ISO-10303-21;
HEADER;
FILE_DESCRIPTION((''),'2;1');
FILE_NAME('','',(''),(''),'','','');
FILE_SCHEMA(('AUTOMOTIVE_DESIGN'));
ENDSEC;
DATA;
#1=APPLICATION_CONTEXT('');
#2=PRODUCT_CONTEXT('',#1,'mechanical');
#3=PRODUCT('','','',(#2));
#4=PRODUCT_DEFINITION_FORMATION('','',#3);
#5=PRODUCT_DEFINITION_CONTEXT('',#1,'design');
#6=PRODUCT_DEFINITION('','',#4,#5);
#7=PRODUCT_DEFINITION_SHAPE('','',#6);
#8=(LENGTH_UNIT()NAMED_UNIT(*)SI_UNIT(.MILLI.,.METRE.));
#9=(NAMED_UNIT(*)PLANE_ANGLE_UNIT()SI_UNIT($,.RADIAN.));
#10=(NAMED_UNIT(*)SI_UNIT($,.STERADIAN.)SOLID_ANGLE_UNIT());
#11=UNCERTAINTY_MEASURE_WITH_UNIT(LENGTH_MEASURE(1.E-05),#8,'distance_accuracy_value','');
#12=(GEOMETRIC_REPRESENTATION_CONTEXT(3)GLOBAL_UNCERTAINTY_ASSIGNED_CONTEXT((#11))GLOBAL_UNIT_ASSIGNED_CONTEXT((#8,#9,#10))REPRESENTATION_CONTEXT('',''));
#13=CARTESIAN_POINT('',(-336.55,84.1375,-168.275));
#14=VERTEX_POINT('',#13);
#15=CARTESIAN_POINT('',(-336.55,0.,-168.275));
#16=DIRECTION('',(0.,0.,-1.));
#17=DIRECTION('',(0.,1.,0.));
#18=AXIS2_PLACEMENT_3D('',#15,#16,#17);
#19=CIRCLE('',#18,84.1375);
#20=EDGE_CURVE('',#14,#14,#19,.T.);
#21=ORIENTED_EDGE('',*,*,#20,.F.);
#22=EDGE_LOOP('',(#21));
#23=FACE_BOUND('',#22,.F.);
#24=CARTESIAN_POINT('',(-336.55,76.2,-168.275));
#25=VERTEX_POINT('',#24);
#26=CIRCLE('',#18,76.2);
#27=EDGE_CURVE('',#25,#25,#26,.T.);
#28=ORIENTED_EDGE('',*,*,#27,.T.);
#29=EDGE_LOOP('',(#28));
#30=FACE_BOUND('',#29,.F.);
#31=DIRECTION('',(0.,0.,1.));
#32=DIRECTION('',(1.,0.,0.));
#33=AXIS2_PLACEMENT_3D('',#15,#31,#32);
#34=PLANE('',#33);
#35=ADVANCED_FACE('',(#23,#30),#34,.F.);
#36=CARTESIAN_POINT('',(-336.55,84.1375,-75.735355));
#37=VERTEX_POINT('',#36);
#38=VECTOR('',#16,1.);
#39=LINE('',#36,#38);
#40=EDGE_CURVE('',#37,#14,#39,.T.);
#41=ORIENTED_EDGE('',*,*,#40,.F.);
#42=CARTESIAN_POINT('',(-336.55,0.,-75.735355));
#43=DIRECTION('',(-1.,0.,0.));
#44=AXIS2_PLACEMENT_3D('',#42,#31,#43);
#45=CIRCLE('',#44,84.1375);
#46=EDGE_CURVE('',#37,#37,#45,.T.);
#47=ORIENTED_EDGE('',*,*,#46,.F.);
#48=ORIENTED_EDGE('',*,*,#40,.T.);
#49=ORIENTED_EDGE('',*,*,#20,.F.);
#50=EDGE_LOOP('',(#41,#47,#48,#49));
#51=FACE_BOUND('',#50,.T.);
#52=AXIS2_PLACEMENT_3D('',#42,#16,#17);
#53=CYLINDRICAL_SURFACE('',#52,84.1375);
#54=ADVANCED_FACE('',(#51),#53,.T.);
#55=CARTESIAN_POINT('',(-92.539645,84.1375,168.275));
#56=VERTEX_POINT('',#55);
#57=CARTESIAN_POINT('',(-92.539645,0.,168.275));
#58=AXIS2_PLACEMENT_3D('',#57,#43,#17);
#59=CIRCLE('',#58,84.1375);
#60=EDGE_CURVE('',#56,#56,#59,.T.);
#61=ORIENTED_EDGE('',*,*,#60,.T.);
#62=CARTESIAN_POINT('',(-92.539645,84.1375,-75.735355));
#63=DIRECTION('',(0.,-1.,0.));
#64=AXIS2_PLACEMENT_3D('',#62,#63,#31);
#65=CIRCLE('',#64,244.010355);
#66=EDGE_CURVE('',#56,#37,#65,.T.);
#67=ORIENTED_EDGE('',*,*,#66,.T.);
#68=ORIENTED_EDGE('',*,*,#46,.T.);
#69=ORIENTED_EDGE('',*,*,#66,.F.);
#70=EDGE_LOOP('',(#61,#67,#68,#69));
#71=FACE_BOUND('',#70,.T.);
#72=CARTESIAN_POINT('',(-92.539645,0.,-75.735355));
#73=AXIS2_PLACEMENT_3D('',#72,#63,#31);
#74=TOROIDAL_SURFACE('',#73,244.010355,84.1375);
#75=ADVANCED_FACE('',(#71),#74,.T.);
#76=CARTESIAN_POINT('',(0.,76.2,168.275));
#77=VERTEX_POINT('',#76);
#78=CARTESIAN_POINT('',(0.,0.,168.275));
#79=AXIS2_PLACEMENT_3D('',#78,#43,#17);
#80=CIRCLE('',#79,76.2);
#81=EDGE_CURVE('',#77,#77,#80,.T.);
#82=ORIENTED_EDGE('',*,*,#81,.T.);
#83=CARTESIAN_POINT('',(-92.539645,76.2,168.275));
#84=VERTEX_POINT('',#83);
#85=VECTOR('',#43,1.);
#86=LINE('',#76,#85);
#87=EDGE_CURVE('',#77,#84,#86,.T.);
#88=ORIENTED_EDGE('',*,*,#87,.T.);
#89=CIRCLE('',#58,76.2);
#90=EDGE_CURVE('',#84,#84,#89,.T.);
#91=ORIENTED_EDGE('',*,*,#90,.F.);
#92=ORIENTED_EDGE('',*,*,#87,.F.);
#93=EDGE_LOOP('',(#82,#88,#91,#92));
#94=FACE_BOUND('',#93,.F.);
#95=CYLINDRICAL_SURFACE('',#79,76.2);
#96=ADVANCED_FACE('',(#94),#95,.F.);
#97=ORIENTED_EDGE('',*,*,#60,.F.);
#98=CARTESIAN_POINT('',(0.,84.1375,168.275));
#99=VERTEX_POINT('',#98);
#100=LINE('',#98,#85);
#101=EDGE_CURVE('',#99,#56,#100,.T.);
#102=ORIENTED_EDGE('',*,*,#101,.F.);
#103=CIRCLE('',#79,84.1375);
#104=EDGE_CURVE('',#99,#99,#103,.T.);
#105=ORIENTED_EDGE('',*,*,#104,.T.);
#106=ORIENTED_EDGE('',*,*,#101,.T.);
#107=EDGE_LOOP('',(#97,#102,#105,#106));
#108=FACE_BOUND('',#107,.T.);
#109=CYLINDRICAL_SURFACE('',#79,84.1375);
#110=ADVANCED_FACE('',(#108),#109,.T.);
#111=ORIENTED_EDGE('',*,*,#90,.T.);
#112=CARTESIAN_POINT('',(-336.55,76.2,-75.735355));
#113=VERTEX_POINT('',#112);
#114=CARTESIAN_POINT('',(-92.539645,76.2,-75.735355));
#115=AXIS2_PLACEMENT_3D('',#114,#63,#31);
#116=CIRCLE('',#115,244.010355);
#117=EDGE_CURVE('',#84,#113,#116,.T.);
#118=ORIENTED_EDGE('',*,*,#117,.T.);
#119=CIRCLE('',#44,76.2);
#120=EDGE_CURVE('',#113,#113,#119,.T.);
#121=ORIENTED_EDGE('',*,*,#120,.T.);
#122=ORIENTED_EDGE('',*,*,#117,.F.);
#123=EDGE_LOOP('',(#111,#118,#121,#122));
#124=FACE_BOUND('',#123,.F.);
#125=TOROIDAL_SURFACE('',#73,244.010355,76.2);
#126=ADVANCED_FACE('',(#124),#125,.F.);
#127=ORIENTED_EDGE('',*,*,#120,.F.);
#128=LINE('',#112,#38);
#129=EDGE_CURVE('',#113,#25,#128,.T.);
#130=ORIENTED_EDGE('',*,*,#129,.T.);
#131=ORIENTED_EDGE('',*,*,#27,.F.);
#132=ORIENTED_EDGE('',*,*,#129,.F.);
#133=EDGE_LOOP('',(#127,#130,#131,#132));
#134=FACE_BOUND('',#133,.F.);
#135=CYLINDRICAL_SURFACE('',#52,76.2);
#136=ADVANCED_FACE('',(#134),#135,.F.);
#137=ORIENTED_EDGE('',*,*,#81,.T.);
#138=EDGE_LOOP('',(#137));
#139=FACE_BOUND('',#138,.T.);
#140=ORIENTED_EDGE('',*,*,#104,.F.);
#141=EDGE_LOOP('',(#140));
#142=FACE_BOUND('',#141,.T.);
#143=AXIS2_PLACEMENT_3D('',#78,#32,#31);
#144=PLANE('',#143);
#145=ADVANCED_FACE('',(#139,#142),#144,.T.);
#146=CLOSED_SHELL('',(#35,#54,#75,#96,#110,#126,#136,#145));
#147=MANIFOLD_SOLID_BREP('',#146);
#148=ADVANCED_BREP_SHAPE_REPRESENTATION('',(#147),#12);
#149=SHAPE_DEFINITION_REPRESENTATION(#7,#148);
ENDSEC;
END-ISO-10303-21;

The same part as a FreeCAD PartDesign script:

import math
import FreeCAD as App
import Part
import Sketcher
Q = App.Units.Quantity

doc = App.newDocument("Part")
params = doc.addObject("Spreadsheet::Sheet", "Params")
for row, (alias, value) in enumerate([
    ("sketch1_diameter", "6 in"),
    ("sketch1_diameter2", "6.625 in"),
], start=1):
    params.set(f"A{row}", alias)
    params.set(f"B{row}", "=" + value)
    params.setAlias(f"B{row}", alias)

body = doc.addObject("PartDesign::Body", "Body")

sketch1 = body.newObject("Sketcher::SketchObject", "Sketch")
sketch1.AttachmentSupport = (doc.getObject("YZ_Plane"), [""])
sketch1.MapMode = "FlatFace"
sketch1.addGeometry(Part.Circle(App.Vector(0, 168, 0), App.Vector(0, 0, 1), 84), False)
sketch1.addGeometry(Part.Circle(App.Vector(0, 168, 0), App.Vector(0, 0, 1), 76), False)
sketch1.addConstraint(Sketcher.Constraint("Coincident", 1, 3, 0, 3))
sketch1.addConstraint(Sketcher.Constraint("PointOnObject", 0, 3, -2))
sketch1.addConstraint(Sketcher.Constraint("Diameter", 1, Q("6 in")))
sketch1.addConstraint(Sketcher.Constraint("Diameter", 0, Q("6.625 in")))
sketch1.addConstraint(Sketcher.Constraint("DistanceY", -1, 1, 0, 3, Q("6.625 in")))
sketch1.setExpression("Constraints[2]", "Params.sketch1_diameter")
sketch1.setExpression("Constraints[3]", "Params.sketch1_diameter2")

sketch2 = body.newObject("Sketcher::SketchObject", "Sketch001")
sketch2.AttachmentSupport = (doc.getObject("XZ_Plane"), [""])
sketch2.MapMode = "FlatFace"
sketch2.addGeometry(Part.LineSegment(App.Vector(0, 168, 0), App.Vector(-93, 168, 0)), False)
sketch2.addGeometry(Part.ArcOfCircle(Part.Circle(App.Vector(-93, -76, 0), App.Vector(0, 0, 1), 244), math.radians(90), math.radians(180)), False)
sketch2.addGeometry(Part.LineSegment(App.Vector(-337, -76, 0), App.Vector(-337, -168, 0)), False)
sketch2.addConstraint(Sketcher.Constraint("Tangent", 0, 2, 1, 1))
sketch2.addConstraint(Sketcher.Constraint("Tangent", 1, 2, 2, 1))
sketch2.addConstraint(Sketcher.Constraint("Horizontal", 0))
sketch2.addConstraint(Sketcher.Constraint("Vertical", 2))
sketch2.addConstraint(Sketcher.Constraint("PointOnObject", 0, 1, -2))
sketch2.addConstraint(Sketcher.Constraint("Equal", 0, 2))
sketch2.addConstraint(Sketcher.Constraint("DistanceX", 1, 2, -1, 1, Q("13.25 in")))
sketch2.addConstraint(Sketcher.Constraint("DistanceY", -1, 1, 0, 1, Q("6.625 in")))
sketch2.addConstraint(Sketcher.Constraint("Radius", 1, Q("244.010355 mm")))
doc.recompute()

additivepipe = body.newObject("PartDesign::AdditivePipe", "AdditivePipe")
additivepipe.Profile = sketch1
additivepipe.Spine = (sketch2, ["Edge1", "Edge2", "Edge3"])

doc.recompute()
